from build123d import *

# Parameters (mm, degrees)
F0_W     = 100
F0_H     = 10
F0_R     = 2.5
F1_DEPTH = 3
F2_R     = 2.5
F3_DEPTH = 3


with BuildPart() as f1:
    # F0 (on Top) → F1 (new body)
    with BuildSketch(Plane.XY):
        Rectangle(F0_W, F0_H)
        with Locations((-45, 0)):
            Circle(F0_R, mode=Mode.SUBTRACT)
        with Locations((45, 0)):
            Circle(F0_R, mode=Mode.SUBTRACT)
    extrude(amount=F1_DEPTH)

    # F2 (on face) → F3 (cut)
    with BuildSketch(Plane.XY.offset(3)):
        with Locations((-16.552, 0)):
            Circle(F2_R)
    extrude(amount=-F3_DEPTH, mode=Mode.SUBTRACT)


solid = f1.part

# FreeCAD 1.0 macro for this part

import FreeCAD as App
import Part
import Sketcher
Q = App.Units.Quantity


def add_polygon(sketch, points):
    """Adds a closed chain of lines whose ends are joined by coincident constraints."""
    first, n = sketch.GeometryCount, len(points)
    for a, b in zip(points, points[1:] + points[:1]):
        sketch.addGeometry(Part.LineSegment(App.Vector(*a, 0), App.Vector(*b, 0)), False)
    for i in range(n):
        sketch.addConstraint(Sketcher.Constraint("Coincident", first + i, 2, first + (i + 1) % n, 1))

doc = App.newDocument("Part")
body = doc.addObject("PartDesign::Body", "Body")

# Sketch on XY plane
sketch1 = body.newObject("Sketcher::SketchObject", "Sketch")
sketch1.AttachmentSupport = (doc.getObject("XY_Plane"), [""])
sketch1.MapMode = "FlatFace"
add_polygon(sketch1, [(-50, 5), (-50, -5), (50, -5), (50, 5)])  # lines 0-3
sketch1.addGeometry(Part.Circle(App.Vector(-45, 0, 0), App.Vector(0, 0, 1), 2.5), False)  # 4
sketch1.addGeometry(Part.Circle(App.Vector(45, 0, 0), App.Vector(0, 0, 1), 2.5), False)  # 5
sketch1.addConstraint([
    Sketcher.Constraint("Vertical", 0),
    Sketcher.Constraint("Horizontal", 1),
    Sketcher.Constraint("Vertical", 2),
    Sketcher.Constraint("Horizontal", 3),
    Sketcher.Constraint("Equal", 4, 5),
    Sketcher.Constraint("Symmetric", 4, 3, 5, 3, -1, 1),
    Sketcher.Constraint("Symmetric", 0, 2, 2, 2, -1, 1),
    Sketcher.Constraint("PointOnObject", 4, 3, -1),
    Sketcher.Constraint("Diameter", 4, Q("5 mm")),
    Sketcher.Constraint("DistanceX", 1, 1, 1, 2, Q("100 mm")),
    Sketcher.Constraint("DistanceY", 0, 2, 0, 1, Q("10 mm")),
    Sketcher.Constraint("DistanceX", 4, 3, -1, 1, Q("45 mm")),
])
pad1 = body.newObject("PartDesign::Pad", "Pad")
pad1.Profile = sketch1
pad1.Length = 3

# Sketch on XY plane
sketch2 = body.newObject("Sketcher::SketchObject", "Sketch001")
sketch2.AttachmentSupport = (doc.getObject("XY_Plane"), [""])
sketch2.MapMode = "FlatFace"
sketch2.AttachmentOffset = App.Placement(App.Vector(0, 0, 3), App.Rotation())
sketch2.addGeometry(Part.Circle(App.Vector(-16.6, 0, 0), App.Vector(0, 0, 1), 2.5), False)
sketch2.addConstraint([
    Sketcher.Constraint("PointOnObject", 0, 3, -1),
    Sketcher.Constraint("Diameter", 0, Q("5 mm")),
    Sketcher.Constraint("DistanceX", 0, 3, -1, 1, Q("16.552 mm")),
])
pocket1 = body.newObject("PartDesign::Pocket", "Pocket")
pocket1.Profile = sketch2
pocket1.Length = 3

doc.recompute()
